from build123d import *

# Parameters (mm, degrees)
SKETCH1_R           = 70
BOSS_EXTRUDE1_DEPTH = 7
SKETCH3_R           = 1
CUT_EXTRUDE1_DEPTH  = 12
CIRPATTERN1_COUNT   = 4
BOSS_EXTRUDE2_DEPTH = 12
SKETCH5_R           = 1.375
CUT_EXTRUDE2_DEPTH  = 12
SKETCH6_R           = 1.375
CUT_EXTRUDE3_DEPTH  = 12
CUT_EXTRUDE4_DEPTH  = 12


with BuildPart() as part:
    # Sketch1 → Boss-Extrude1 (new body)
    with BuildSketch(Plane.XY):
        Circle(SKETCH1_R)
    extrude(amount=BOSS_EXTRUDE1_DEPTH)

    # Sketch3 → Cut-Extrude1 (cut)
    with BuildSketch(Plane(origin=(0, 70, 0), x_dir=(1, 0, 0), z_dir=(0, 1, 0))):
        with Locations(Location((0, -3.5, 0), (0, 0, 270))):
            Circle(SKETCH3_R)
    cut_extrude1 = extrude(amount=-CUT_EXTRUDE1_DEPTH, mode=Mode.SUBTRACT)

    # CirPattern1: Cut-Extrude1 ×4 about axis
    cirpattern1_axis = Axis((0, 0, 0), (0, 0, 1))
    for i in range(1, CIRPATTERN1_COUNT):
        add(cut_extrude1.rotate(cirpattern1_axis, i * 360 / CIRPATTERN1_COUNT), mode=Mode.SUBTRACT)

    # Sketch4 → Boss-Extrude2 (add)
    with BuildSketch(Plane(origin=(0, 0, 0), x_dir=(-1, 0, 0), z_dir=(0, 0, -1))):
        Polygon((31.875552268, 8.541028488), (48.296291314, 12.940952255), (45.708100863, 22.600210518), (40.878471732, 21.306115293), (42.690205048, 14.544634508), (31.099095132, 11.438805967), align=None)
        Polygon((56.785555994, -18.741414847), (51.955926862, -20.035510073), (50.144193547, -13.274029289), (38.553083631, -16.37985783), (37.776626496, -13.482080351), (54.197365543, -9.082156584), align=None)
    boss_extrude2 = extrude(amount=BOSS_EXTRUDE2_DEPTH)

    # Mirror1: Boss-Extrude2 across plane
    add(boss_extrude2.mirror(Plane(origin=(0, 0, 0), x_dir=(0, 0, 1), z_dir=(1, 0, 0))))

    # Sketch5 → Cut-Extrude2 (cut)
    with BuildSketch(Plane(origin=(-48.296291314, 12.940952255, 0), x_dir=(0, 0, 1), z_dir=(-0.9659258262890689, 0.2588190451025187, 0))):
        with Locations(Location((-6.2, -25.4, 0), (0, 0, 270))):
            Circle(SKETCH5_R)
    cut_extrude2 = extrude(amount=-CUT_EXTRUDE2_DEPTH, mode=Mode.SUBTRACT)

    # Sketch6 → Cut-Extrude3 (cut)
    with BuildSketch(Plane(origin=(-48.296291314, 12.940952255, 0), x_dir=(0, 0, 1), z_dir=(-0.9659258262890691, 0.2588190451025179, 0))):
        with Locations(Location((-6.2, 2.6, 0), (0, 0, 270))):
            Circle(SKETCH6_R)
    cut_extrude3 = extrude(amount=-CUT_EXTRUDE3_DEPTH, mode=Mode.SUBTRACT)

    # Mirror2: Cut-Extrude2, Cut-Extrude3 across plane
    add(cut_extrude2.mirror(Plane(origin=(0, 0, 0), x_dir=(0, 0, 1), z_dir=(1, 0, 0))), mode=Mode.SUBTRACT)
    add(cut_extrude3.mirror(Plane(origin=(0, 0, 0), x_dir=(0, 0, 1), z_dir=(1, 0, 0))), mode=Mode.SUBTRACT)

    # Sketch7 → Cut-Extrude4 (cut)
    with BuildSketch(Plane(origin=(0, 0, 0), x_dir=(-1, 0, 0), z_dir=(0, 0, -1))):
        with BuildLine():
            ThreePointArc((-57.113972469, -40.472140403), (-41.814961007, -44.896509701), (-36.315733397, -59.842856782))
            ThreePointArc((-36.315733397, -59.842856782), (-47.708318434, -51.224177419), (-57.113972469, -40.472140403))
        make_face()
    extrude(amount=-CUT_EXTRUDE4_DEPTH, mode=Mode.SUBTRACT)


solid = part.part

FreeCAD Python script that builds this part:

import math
import FreeCAD as App
import Part
import Sketcher
from FreeCAD import Vector
Q = App.Units.Quantity


def add_polygon(sketch, points):
    """Adds a closed chain of lines whose ends are joined by coincident constraints."""
    first, n = sketch.GeometryCount, len(points)
    for a, b in zip(points, points[1:] + points[:1]):
        sketch.addGeometry(Part.LineSegment(App.Vector(*a, 0), App.Vector(*b, 0)), False)
    for i in range(n):
        sketch.addConstraint(Sketcher.Constraint("Coincident", first + i, 2, first + (i + 1) % n, 1))

doc = App.newDocument("Part")
body = doc.addObject("PartDesign::Body", "Body")

sketch1 = body.newObject("Sketcher::SketchObject", "Sketch")
sketch1.AttachmentSupport = (doc.getObject("XY_Plane"), [""])
sketch1.MapMode = "FlatFace"
sketch1.addGeometry(Part.Circle(Vector(0, 0, 0), Vector(0, 0, 1), 70), False)
sketch1.addConstraint(Sketcher.Constraint("Coincident", 0, 3, -1, 1))
sketch1.addConstraint(Sketcher.Constraint("Diameter", 0, 140.0))
pad1 = body.newObject("PartDesign::Pad", "Pad")
pad1.Profile = sketch1
pad1.Length = 7

sketch2 = body.newObject("Sketcher::SketchObject", "Sketch001")
sketch2.AttachmentSupport = (doc.getObject("XZ_Plane"), [""])
sketch2.MapMode = "FlatFace"
sketch2.AttachmentOffset = App.Placement(Vector(0, 0, -70), App.Rotation())
sketch2.addGeometry(Part.Circle(Vector(0, 3.5, 0), Vector(0, 0, 1), 1), False)
sketch2.addConstraint(Sketcher.Constraint("PointOnObject", 0, 3, -2))
sketch2.addConstraint(Sketcher.Constraint("Diameter", 0, 2.0))
sketch2.addConstraint(Sketcher.Constraint("DistanceY", -1, 1, 0, 3, 3.5))
pocket1 = body.newObject("PartDesign::Pocket", "Pocket")
pocket1.Profile = sketch2
pocket1.Length = 12
pocket1.Reversed = True
doc.recompute()

polarpattern = body.newObject("PartDesign::PolarPattern", "PolarPattern")
polarpattern.Originals = [pocket1]
polarpattern.Axis = (doc.getObject("Z_Axis"), [""])
polarpattern.Angle = 360
polarpattern.Occurrences = 4
body.Tip = polarpattern

sketch3 = body.newObject("Sketcher::SketchObject", "Sketch002")
sketch3.AttachmentSupport = (doc.getObject("XY_Plane"), [""])
sketch3.MapMode = "FlatFace"
add_polygon(sketch3, [(-31.9, 8.5), (-48.3, 12.9), (-45.7, 22.6), (-40.9, 21.3), (-42.7, 14.5), (-31.1, 11.4)])
add_polygon(sketch3, [(-52, -20), (-56.8, -18.7), (-54.2, -9.1), (-37.8, -13.5), (-38.6, -16.4), (-50.1, -13.3)])
sketch3.addConstraint(Sketcher.Constraint("Perpendicular", 0, 1))
sketch3.addConstraint(Sketcher.Constraint("Perpendicular", 1, 2))
sketch3.addConstraint(Sketcher.Constraint("Perpendicular", 2, 3))
sketch3.addConstraint(Sketcher.Constraint("Perpendicular", 3, 4))
sketch3.addConstraint(Sketcher.Constraint("Perpendicular", 4, 5))
sketch3.addConstraint(Sketcher.Constraint("Perpendicular", 5, 6))
sketch3.addConstraint(Sketcher.Constraint("Perpendicular", 6, 7))
sketch3.addConstraint(Sketcher.Constraint("Perpendicular", 7, 8))
sketch3.addConstraint(Sketcher.Constraint("Perpendicular", 8, 9))
sketch3.addConstraint(Sketcher.Constraint("Perpendicular", 9, 10))
sketch3.addConstraint(Sketcher.Constraint("Perpendicular", 10, 11))
sketch3.addConstraint(Sketcher.Constraint("Equal", 2, 6))
sketch3.addConstraint(Sketcher.Constraint("Equal", 1, 7))
sketch3.addConstraint(Sketcher.Constraint("Equal", 0, 8))
sketch3.addConstraint(Sketcher.Constraint("Equal", 5, 9))
sketch3.addConstraint(Sketcher.Constraint("Angle", 0, Q("165 deg")))
sketch3.addConstraint(Sketcher.Constraint("Distance", 0, 17.0))
sketch3.addConstraint(Sketcher.Constraint("Distance", 1, 10.0))
sketch3.addConstraint(Sketcher.Constraint("Distance", 2, 5.0))
sketch3.addConstraint(Sketcher.Constraint("Distance", 3, 7.0))
sketch3.addConstraint(Sketcher.Constraint("DistanceX", 1, 2, -1, 1, 45.708101))
sketch3.addConstraint(Sketcher.Constraint("DistanceY", -1, 1, 1, 2, 22.600211))
sketch3.addConstraint(Sketcher.Constraint("DistanceY", 8, 2, -1, 1, 13.48208))
sketch3.addConstraint(Sketcher.Constraint("DistanceX", 6, 2, 3, 2, 14.095351))
pad2 = body.newObject("PartDesign::Pad", "Pad001")
pad2.Profile = sketch3
pad2.Length = 12
pad2.Reversed = True
doc.recompute()

mirrored = body.newObject("PartDesign::Mirrored", "Mirrored")
mirrored.Originals = [pad2]
mirrored.MirrorPlane = (doc.getObject("YZ_Plane"), [""])
body.Tip = mirrored

sketch4 = body.newObject("Sketcher::SketchObject", "Sketch003")
sketch4.Placement = App.Placement(Vector(-48.296291, 12.940952, 0), App.Rotation(Vector(0, 0, 1), Vector(0.258819045, 0.965925826, 0), Vector(-0.965925826, 0.258819045, 0), "ZXY"))
sketch4.addGeometry(Part.Circle(Vector(-6.2, -25.4, 0), Vector(0, 0, 1), 1.4), False)
sketch4.addConstraint(Sketcher.Constraint("Diameter", 0, 2.75))
sketch4.addConstraint(Sketcher.Constraint("DistanceX", 0, 3, -1, 1, 6.2))
sketch4.addConstraint(Sketcher.Constraint("DistanceY", 0, 3, -1, 1, 25.4))
pocket2 = body.newObject("PartDesign::Pocket", "Pocket001")
pocket2.Profile = sketch4
pocket2.Length = 12

sketch5 = body.newObject("Sketcher::SketchObject", "Sketch004")
sketch5.Placement = App.Placement(Vector(-48.296291, 12.940952, 0), App.Rotation(Vector(0, 0, 1), Vector(0.258819045, 0.965925826, 0), Vector(-0.965925826, 0.258819045, 0), "ZXY"))
sketch5.addGeometry(Part.Circle(Vector(-6.2, 2.6, 0), Vector(0, 0, 1), 1.4), False)
sketch5.addConstraint(Sketcher.Constraint("Diameter", 0, 2.75))
sketch5.addConstraint(Sketcher.Constraint("DistanceX", 0, 3, -1, 1, 6.2))
sketch5.addConstraint(Sketcher.Constraint("DistanceY", -1, 1, 0, 3, 2.6))
pocket3 = body.newObject("PartDesign::Pocket", "Pocket002")
pocket3.Profile = sketch5
pocket3.Length = 12
doc.recompute()

mirrored2 = body.newObject("PartDesign::Mirrored", "Mirrored001")
mirrored2.Originals = [pocket2, pocket3]
mirrored2.MirrorPlane = (doc.getObject("YZ_Plane"), [""])
body.Tip = mirrored2

sketch6 = body.newObject("Sketcher::SketchObject", "Sketch005")
sketch6.AttachmentSupport = (doc.getObject("XY_Plane"), [""])
sketch6.MapMode = "FlatFace"
sketch6.addGeometry(Part.ArcOfCircle(Part.Circle(Vector(54, -58, 0), Vector(0, 0, 1), 18), math.radians(79), math.radians(187)), False)
sketch6.addGeometry(Part.ArcOfCircle(Part.Circle(Vector(0, 0, 0), Vector(0, 0, 1), 70), math.radians(-59), math.radians(-35)), False)
sketch6.addConstraint(Sketcher.Constraint("Coincident", 0, 1, 1, 2))
sketch6.addConstraint(Sketcher.Constraint("Coincident", 1, 1, 0, 2))
sketch6.addConstraint(Sketcher.Constraint("Coincident", 1, 3, -1, 1))
sketch6.addConstraint(Sketcher.Constraint("Radius", 1, 70.0))
sketch6.addConstraint(Sketcher.Constraint("Radius", 0, 17.639587))
sketch6.addConstraint(Sketcher.Constraint("DistanceY", 0, 3, -1, 1, 57.8047))
sketch6.addConstraint(Sketcher.Constraint("DistanceY", 0, 1, -1, 1, 40.47214))
pocket4 = body.newObject("PartDesign::Pocket", "Pocket003")
pocket4.Profile = sketch6
pocket4.Length = 12
pocket4.Reversed = True

doc.recompute()
